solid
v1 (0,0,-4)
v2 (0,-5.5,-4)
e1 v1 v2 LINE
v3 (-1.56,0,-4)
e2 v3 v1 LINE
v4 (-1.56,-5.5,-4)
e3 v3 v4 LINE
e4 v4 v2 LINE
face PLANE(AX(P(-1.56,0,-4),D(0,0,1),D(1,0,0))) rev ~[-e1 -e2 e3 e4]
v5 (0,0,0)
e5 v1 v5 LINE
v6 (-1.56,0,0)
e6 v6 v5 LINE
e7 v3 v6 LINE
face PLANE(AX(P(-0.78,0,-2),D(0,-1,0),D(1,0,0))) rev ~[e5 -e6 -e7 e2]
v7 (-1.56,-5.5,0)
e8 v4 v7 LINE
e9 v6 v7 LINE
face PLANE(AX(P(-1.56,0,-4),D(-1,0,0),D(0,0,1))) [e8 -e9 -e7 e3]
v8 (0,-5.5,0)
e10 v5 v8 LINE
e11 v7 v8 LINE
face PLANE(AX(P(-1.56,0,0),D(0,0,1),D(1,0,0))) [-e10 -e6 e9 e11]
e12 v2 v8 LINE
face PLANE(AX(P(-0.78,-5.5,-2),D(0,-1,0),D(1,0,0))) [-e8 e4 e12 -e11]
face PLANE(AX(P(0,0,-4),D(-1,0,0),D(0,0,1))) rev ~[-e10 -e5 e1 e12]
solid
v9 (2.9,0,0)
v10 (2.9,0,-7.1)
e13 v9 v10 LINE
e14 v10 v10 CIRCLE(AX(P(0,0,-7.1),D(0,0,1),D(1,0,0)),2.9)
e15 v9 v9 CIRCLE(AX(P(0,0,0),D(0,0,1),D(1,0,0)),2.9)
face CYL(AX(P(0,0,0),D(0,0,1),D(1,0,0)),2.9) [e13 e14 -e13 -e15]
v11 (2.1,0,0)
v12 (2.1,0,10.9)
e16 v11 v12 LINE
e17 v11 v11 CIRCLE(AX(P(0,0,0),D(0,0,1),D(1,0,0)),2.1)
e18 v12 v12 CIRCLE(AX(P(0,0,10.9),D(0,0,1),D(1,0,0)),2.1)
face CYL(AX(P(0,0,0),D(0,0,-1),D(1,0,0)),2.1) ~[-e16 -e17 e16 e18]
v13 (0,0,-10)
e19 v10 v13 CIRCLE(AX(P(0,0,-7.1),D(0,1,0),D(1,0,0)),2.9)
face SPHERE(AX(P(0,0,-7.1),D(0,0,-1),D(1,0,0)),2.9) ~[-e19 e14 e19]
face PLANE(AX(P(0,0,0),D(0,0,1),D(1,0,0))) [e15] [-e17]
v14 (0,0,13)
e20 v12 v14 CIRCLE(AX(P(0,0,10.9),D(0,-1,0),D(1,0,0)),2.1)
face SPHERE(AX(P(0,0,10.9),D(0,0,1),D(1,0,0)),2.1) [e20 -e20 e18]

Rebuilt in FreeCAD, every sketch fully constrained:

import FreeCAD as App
import Part
import Sketcher

V = App.Vector


def edges_at(feature, points):
    """Names of the edges that pass closest to the given points."""
    edges = feature.Shape.Edges
    near = lambda p: min(range(len(edges)), key=lambda i: edges[i].distToShape(Part.Vertex(*p))[0])
    return sorted({f"Edge{near(p) + 1}" for p in points})


def add_polygon(sketch, points):
    """Adds a closed chain of lines whose ends are joined by coincident constraints."""
    first, n = sketch.GeometryCount, len(points)
    for a, b in zip(points, points[1:] + points[:1]):
        sketch.addGeometry(Part.LineSegment(App.Vector(*a, 0), App.Vector(*b, 0)), False)
    for i in range(n):
        sketch.addConstraint(Sketcher.Constraint("Coincident", first + i, 2, first + (i + 1) % n, 1))

doc = App.newDocument("Part")
params = doc.addObject("Spreadsheet::Sheet", "Params")
for row, (alias, value) in enumerate([
    ("sketch1_diameter", "4.2 mm"),
    ("pad1_length", "13 mm"),
    ("sketch2_diameter", "5.8 mm"),
    ("pad2_length", "10 mm"),
    ("fillet_radius", "2.1 mm"),
    ("fillet2_radius", "2.9 mm"),
    ("sketch3_height", "4 mm"),
    ("sketch3_width", "1.56 mm"),
    ("pad3_length", "5.5 mm"),
], start=1):
    params.set(f"A{row}", alias)
    params.set(f"B{row}", "=" + value)
    params.setAlias(f"B{row}", alias)

body = doc.addObject("PartDesign::Body", "Body")

# Sketch on XY plane
sketch1 = body.newObject("Sketcher::SketchObject", "Sketch")
sketch1.AttachmentSupport = (doc.getObject("XY_Plane"), [""])
sketch1.MapMode = "FlatFace"
sketch1.addGeometry(Part.Circle(V(0, 0, 0), V(0, 0, 1), 2.1), False)
sketch1.addConstraint(Sketcher.Constraint("Coincident", 0, 3, -1, 1))
sketch1.addConstraint(Sketcher.Constraint("Diameter", 0, 4.2))
sketch1.setExpression("Constraints[1]", "Params.sketch1_diameter")
pad1 = body.newObject("PartDesign::Pad", "Pad")
pad1.Profile = sketch1
pad1.setExpression("Length", "Params.pad1_length")

# Sketch on XY plane
sketch2 = body.newObject("Sketcher::SketchObject", "Sketch001")
sketch2.AttachmentSupport = (doc.getObject("XY_Plane"), [""])
sketch2.MapMode = "FlatFace"
sketch2.addGeometry(Part.Circle(V(0, 0, 0), V(0, 0, 1), 2.9), False)
sketch2.addConstraint(Sketcher.Constraint("Coincident", 0, 3, -1, 1))
sketch2.addConstraint(Sketcher.Constraint("Diameter", 0, 5.8))
sketch2.setExpression("Constraints[1]", "Params.sketch2_diameter")
pad2 = body.newObject("PartDesign::Pad", "Pad001")
pad2.Profile = sketch2
pad2.setExpression("Length", "Params.pad2_length")
pad2.Reversed = True
doc.recompute()

fillet = body.newObject("PartDesign::Fillet", "Fillet")
fillet.Base = (pad2, edges_at(pad2, [(-2.1, 0, 13)]))
fillet.setExpression("Radius", "Params.fillet_radius")
doc.recompute()

fillet2 = body.newObject("PartDesign::Fillet", "Fillet001")
fillet2.Base = (fillet, edges_at(fillet, [(-2.9, 0, -10)]))
fillet2.setExpression("Radius", "Params.fillet2_radius")
body2 = doc.addObject("PartDesign::Body", "Body001")

# Sketch on XZ plane
sketch3 = body2.newObject("Sketcher::SketchObject", "Sketch002")
sketch3.AttachmentSupport = (doc.getObject("XZ_Plane001"), [""])
sketch3.MapMode = "FlatFace"
add_polygon(sketch3, [(-1.56, 0), (-1.56, -4), (0, -4), (0, 0)])  # lines 0-3
sketch3.addConstraint(Sketcher.Constraint("Vertical", 0))
sketch3.addConstraint(Sketcher.Constraint("Horizontal", 1))
sketch3.addConstraint(Sketcher.Constraint("Vertical", 2))
sketch3.addConstraint(Sketcher.Constraint("Horizontal", 3))
sketch3.addConstraint(Sketcher.Constraint("Coincident", 2, 2, -1, 1))
sketch3.addConstraint(Sketcher.Constraint("DistanceY", 0, 2, 0, 1, 4.0))
sketch3.addConstraint(Sketcher.Constraint("DistanceX", 1, 1, 1, 2, 1.56))
sketch3.setExpression("Constraints[9]", "Params.sketch3_height")
sketch3.setExpression("Constraints[10]", "Params.sketch3_width")
pad3 = body2.newObject("PartDesign::Pad", "Pad002")
pad3.Profile = sketch3
pad3.setExpression("Length", "Params.pad3_length")

doc.recompute()
